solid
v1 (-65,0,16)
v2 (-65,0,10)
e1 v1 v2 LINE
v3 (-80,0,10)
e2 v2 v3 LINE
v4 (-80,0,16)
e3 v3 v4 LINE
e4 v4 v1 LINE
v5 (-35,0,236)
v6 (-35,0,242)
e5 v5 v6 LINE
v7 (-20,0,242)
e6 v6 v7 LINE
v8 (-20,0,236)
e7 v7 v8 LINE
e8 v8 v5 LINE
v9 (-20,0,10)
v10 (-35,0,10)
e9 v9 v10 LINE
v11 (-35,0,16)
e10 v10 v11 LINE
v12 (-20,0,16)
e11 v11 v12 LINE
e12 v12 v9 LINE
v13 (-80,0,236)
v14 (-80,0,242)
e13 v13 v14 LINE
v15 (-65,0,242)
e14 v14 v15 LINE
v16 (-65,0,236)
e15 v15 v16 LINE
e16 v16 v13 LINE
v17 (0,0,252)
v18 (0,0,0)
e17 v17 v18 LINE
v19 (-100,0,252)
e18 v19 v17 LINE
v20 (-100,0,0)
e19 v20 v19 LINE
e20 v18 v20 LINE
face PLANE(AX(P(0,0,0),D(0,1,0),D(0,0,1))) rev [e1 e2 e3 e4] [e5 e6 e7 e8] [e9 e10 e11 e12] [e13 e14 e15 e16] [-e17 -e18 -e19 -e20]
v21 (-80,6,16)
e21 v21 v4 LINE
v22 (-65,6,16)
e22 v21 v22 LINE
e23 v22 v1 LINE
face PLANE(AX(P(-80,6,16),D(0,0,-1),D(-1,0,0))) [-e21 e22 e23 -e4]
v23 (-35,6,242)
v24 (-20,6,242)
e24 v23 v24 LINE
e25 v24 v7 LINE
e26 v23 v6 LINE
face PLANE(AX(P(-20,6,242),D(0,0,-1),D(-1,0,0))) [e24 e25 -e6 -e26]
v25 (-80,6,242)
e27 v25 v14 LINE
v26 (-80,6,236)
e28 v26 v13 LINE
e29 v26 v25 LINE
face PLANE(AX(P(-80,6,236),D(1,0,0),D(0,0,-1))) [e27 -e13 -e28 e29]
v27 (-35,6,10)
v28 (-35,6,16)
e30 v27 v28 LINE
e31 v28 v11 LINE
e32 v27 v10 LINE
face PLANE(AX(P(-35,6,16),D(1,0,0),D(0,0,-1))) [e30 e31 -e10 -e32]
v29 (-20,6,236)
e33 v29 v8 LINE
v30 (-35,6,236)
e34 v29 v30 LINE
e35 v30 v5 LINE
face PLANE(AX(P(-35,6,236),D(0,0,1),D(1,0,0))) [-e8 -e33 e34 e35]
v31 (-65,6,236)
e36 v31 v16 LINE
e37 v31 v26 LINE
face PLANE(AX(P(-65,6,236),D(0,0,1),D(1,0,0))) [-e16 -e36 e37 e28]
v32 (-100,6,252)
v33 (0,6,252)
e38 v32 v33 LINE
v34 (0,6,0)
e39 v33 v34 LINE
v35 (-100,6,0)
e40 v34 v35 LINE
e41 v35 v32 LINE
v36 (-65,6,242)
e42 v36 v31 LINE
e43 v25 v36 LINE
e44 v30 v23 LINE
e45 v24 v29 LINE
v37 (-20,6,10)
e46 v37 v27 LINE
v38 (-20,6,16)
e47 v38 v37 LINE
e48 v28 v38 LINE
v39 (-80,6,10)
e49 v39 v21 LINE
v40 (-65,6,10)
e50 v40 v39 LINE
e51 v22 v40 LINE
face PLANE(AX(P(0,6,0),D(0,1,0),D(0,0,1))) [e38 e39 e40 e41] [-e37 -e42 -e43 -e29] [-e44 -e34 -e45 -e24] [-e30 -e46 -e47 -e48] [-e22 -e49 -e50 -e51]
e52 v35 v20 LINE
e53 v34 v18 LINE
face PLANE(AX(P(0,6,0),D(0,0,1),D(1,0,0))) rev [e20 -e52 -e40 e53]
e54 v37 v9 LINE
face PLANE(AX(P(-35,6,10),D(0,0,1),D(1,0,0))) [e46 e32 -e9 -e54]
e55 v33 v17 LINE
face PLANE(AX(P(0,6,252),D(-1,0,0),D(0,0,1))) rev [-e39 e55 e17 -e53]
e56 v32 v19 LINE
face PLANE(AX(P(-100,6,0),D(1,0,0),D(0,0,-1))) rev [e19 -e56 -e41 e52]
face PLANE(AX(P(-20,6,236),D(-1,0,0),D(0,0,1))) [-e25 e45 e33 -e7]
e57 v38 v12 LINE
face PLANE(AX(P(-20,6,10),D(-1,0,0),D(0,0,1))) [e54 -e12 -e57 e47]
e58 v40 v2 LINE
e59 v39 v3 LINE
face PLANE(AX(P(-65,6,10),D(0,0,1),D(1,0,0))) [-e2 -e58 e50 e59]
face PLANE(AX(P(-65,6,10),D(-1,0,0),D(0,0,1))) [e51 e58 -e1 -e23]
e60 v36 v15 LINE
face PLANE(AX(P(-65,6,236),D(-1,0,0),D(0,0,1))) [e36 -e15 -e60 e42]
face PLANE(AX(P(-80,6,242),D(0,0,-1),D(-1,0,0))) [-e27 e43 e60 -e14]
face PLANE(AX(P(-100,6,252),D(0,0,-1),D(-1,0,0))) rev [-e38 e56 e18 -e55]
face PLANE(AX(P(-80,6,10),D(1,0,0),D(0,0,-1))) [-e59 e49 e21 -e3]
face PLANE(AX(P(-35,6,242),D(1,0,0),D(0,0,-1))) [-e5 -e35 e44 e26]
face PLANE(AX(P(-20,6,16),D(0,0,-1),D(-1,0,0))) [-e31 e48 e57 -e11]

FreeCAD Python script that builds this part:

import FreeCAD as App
import Part
import Sketcher
from FreeCAD import Vector

doc = App.newDocument("Part")
body = doc.addObject("PartDesign::Body", "Body")

sketch1 = doc.addObject("Sketcher::SketchObject", "Sketch")
body.addObject(sketch1)
sketch1.AttachmentSupport = (doc.XZ_Plane, [""])
sketch1.MapMode = "FlatFace"
sketch1.addGeometry(Part.LineSegment(Vector(-100, 0, 0), Vector(-100, 252, 0)), False)
sketch1.addGeometry(Part.LineSegment(Vector(-100, 252, 0), Vector(0, 252, 0)), False)
sketch1.addGeometry(Part.LineSegment(Vector(0, 252, 0), Vector(0, 0, 0)), False)
sketch1.addGeometry(Part.LineSegment(Vector(0, 0, 0), Vector(-100, 0, 0)), False)
sketch1.addGeometry(Part.LineSegment(Vector(-65, 242, 0), Vector(-80, 242, 0)), False)
sketch1.addGeometry(Part.LineSegment(Vector(-80, 242, 0), Vector(-80, 236, 0)), False)
sketch1.addGeometry(Part.LineSegment(Vector(-80, 236, 0), Vector(-65, 236, 0)), False)
sketch1.addGeometry(Part.LineSegment(Vector(-65, 236, 0), Vector(-65, 242, 0)), False)
sketch1.addGeometry(Part.LineSegment(Vector(-20, 242, 0), Vector(-35, 242, 0)), False)
sketch1.addGeometry(Part.LineSegment(Vector(-35, 242, 0), Vector(-35, 236, 0)), False)
sketch1.addGeometry(Part.LineSegment(Vector(-35, 236, 0), Vector(-20, 236, 0)), False)
sketch1.addGeometry(Part.LineSegment(Vector(-20, 236, 0), Vector(-20, 242, 0)), False)
sketch1.addGeometry(Part.LineSegment(Vector(-65, 16, 0), Vector(-80, 16, 0)), False)
sketch1.addGeometry(Part.LineSegment(Vector(-80, 16, 0), Vector(-80, 10, 0)), False)
sketch1.addGeometry(Part.LineSegment(Vector(-80, 10, 0), Vector(-65, 10, 0)), False)
sketch1.addGeometry(Part.LineSegment(Vector(-65, 10, 0), Vector(-65, 16, 0)), False)
sketch1.addGeometry(Part.LineSegment(Vector(-20, 16, 0), Vector(-35, 16, 0)), False)
sketch1.addGeometry(Part.LineSegment(Vector(-35, 16, 0), Vector(-35, 10, 0)), False)
sketch1.addGeometry(Part.LineSegment(Vector(-35, 10, 0), Vector(-20, 10, 0)), False)
sketch1.addGeometry(Part.LineSegment(Vector(-20, 10, 0), Vector(-20, 16, 0)), False)
sketch1.addConstraint(Sketcher.Constraint("Coincident", 0, 2, 1, 1))
sketch1.addConstraint(Sketcher.Constraint("Coincident", 1, 2, 2, 1))
sketch1.addConstraint(Sketcher.Constraint("Coincident", 2, 2, 3, 1))
sketch1.addConstraint(Sketcher.Constraint("Coincident", 3, 2, 0, 1))
sketch1.addConstraint(Sketcher.Constraint("Coincident", 4, 2, 5, 1))
sketch1.addConstraint(Sketcher.Constraint("Coincident", 5, 2, 6, 1))
sketch1.addConstraint(Sketcher.Constraint("Coincident", 6, 2, 7, 1))
sketch1.addConstraint(Sketcher.Constraint("Coincident", 7, 2, 4, 1))
sketch1.addConstraint(Sketcher.Constraint("Coincident", 8, 2, 9, 1))
sketch1.addConstraint(Sketcher.Constraint("Coincident", 9, 2, 10, 1))
sketch1.addConstraint(Sketcher.Constraint("Coincident", 10, 2, 11, 1))
sketch1.addConstraint(Sketcher.Constraint("Coincident", 11, 2, 8, 1))
sketch1.addConstraint(Sketcher.Constraint("Coincident", 12, 2, 13, 1))
sketch1.addConstraint(Sketcher.Constraint("Coincident", 13, 2, 14, 1))
sketch1.addConstraint(Sketcher.Constraint("Coincident", 14, 2, 15, 1))
sketch1.addConstraint(Sketcher.Constraint("Coincident", 15, 2, 12, 1))
sketch1.addConstraint(Sketcher.Constraint("Coincident", 16, 2, 17, 1))
sketch1.addConstraint(Sketcher.Constraint("Coincident", 17, 2, 18, 1))
sketch1.addConstraint(Sketcher.Constraint("Coincident", 18, 2, 19, 1))
sketch1.addConstraint(Sketcher.Constraint("Coincident", 19, 2, 16, 1))
sketch1.addConstraint(Sketcher.Constraint("Vertical", 0))
sketch1.addConstraint(Sketcher.Constraint("Horizontal", 1))
sketch1.addConstraint(Sketcher.Constraint("Vertical", 2))
sketch1.addConstraint(Sketcher.Constraint("Horizontal", 3))
sketch1.addConstraint(Sketcher.Constraint("Horizontal", 4))
sketch1.addConstraint(Sketcher.Constraint("Vertical", 5))
sketch1.addConstraint(Sketcher.Constraint("Horizontal", 6))
sketch1.addConstraint(Sketcher.Constraint("Vertical", 7))
sketch1.addConstraint(Sketcher.Constraint("Horizontal", 8))
sketch1.addConstraint(Sketcher.Constraint("Vertical", 9))
sketch1.addConstraint(Sketcher.Constraint("Horizontal", 10))
sketch1.addConstraint(Sketcher.Constraint("Vertical", 11))
sketch1.addConstraint(Sketcher.Constraint("Horizontal", 12))
sketch1.addConstraint(Sketcher.Constraint("Vertical", 13))
sketch1.addConstraint(Sketcher.Constraint("Horizontal", 14))
sketch1.addConstraint(Sketcher.Constraint("Vertical", 15))
sketch1.addConstraint(Sketcher.Constraint("Horizontal", 16))
sketch1.addConstraint(Sketcher.Constraint("Vertical", 17))
sketch1.addConstraint(Sketcher.Constraint("Horizontal", 18))
sketch1.addConstraint(Sketcher.Constraint("Vertical", 19))
sketch1.addConstraint(Sketcher.Constraint("Coincident", 2, 2, -1, 1))
sketch1.addConstraint(Sketcher.Constraint("Horizontal", 7, 2, 8, 2))
sketch1.addConstraint(Sketcher.Constraint("Horizontal", 6, 2, 9, 2))
sketch1.addConstraint(Sketcher.Constraint("Horizontal", 15, 2, 16, 2))
sketch1.addConstraint(Sketcher.Constraint("Horizontal", 14, 2, 17, 2))
sketch1.addConstraint(Sketcher.Constraint("Vertical", 5, 2, 12, 2))
sketch1.addConstraint(Sketcher.Constraint("Vertical", 7, 2, 14, 2))
sketch1.addConstraint(Sketcher.Constraint("Vertical", 9, 2, 16, 2))
sketch1.addConstraint(Sketcher.Constraint("Vertical", 11, 2, 18, 2))
sketch1.addConstraint(Sketcher.Constraint("Equal", 6, 8))
sketch1.addConstraint(Sketcher.Constraint("Equal", 11, 13))
sketch1.addConstraint(Sketcher.Constraint("DistanceX", 1, 1, 1, 2, 100.0))
sketch1.addConstraint(Sketcher.Constraint("DistanceX", 4, 2, 4, 1, 15.0))
sketch1.addConstraint(Sketcher.Constraint("DistanceY", 0, 1, 0, 2, 252.0))
sketch1.addConstraint(Sketcher.Constraint("DistanceY", 5, 2, 5, 1, 6.0))
sketch1.addConstraint(Sketcher.Constraint("DistanceX", 4, 2, -1, 1, 80.0))
sketch1.addConstraint(Sketcher.Constraint("DistanceY", -1, 1, 4, 2, 242.0))
sketch1.addConstraint(Sketcher.Constraint("DistanceX", 8, 2, -1, 1, 35.0))
sketch1.addConstraint(Sketcher.Constraint("DistanceY", -1, 1, 12, 2, 16.0))
pad1 = doc.addObject("PartDesign::Pad", "Pad")
body.addObject(pad1)
pad1.Profile = sketch1
pad1.Length = 6
pad1.Reversed = True

doc.recompute()
